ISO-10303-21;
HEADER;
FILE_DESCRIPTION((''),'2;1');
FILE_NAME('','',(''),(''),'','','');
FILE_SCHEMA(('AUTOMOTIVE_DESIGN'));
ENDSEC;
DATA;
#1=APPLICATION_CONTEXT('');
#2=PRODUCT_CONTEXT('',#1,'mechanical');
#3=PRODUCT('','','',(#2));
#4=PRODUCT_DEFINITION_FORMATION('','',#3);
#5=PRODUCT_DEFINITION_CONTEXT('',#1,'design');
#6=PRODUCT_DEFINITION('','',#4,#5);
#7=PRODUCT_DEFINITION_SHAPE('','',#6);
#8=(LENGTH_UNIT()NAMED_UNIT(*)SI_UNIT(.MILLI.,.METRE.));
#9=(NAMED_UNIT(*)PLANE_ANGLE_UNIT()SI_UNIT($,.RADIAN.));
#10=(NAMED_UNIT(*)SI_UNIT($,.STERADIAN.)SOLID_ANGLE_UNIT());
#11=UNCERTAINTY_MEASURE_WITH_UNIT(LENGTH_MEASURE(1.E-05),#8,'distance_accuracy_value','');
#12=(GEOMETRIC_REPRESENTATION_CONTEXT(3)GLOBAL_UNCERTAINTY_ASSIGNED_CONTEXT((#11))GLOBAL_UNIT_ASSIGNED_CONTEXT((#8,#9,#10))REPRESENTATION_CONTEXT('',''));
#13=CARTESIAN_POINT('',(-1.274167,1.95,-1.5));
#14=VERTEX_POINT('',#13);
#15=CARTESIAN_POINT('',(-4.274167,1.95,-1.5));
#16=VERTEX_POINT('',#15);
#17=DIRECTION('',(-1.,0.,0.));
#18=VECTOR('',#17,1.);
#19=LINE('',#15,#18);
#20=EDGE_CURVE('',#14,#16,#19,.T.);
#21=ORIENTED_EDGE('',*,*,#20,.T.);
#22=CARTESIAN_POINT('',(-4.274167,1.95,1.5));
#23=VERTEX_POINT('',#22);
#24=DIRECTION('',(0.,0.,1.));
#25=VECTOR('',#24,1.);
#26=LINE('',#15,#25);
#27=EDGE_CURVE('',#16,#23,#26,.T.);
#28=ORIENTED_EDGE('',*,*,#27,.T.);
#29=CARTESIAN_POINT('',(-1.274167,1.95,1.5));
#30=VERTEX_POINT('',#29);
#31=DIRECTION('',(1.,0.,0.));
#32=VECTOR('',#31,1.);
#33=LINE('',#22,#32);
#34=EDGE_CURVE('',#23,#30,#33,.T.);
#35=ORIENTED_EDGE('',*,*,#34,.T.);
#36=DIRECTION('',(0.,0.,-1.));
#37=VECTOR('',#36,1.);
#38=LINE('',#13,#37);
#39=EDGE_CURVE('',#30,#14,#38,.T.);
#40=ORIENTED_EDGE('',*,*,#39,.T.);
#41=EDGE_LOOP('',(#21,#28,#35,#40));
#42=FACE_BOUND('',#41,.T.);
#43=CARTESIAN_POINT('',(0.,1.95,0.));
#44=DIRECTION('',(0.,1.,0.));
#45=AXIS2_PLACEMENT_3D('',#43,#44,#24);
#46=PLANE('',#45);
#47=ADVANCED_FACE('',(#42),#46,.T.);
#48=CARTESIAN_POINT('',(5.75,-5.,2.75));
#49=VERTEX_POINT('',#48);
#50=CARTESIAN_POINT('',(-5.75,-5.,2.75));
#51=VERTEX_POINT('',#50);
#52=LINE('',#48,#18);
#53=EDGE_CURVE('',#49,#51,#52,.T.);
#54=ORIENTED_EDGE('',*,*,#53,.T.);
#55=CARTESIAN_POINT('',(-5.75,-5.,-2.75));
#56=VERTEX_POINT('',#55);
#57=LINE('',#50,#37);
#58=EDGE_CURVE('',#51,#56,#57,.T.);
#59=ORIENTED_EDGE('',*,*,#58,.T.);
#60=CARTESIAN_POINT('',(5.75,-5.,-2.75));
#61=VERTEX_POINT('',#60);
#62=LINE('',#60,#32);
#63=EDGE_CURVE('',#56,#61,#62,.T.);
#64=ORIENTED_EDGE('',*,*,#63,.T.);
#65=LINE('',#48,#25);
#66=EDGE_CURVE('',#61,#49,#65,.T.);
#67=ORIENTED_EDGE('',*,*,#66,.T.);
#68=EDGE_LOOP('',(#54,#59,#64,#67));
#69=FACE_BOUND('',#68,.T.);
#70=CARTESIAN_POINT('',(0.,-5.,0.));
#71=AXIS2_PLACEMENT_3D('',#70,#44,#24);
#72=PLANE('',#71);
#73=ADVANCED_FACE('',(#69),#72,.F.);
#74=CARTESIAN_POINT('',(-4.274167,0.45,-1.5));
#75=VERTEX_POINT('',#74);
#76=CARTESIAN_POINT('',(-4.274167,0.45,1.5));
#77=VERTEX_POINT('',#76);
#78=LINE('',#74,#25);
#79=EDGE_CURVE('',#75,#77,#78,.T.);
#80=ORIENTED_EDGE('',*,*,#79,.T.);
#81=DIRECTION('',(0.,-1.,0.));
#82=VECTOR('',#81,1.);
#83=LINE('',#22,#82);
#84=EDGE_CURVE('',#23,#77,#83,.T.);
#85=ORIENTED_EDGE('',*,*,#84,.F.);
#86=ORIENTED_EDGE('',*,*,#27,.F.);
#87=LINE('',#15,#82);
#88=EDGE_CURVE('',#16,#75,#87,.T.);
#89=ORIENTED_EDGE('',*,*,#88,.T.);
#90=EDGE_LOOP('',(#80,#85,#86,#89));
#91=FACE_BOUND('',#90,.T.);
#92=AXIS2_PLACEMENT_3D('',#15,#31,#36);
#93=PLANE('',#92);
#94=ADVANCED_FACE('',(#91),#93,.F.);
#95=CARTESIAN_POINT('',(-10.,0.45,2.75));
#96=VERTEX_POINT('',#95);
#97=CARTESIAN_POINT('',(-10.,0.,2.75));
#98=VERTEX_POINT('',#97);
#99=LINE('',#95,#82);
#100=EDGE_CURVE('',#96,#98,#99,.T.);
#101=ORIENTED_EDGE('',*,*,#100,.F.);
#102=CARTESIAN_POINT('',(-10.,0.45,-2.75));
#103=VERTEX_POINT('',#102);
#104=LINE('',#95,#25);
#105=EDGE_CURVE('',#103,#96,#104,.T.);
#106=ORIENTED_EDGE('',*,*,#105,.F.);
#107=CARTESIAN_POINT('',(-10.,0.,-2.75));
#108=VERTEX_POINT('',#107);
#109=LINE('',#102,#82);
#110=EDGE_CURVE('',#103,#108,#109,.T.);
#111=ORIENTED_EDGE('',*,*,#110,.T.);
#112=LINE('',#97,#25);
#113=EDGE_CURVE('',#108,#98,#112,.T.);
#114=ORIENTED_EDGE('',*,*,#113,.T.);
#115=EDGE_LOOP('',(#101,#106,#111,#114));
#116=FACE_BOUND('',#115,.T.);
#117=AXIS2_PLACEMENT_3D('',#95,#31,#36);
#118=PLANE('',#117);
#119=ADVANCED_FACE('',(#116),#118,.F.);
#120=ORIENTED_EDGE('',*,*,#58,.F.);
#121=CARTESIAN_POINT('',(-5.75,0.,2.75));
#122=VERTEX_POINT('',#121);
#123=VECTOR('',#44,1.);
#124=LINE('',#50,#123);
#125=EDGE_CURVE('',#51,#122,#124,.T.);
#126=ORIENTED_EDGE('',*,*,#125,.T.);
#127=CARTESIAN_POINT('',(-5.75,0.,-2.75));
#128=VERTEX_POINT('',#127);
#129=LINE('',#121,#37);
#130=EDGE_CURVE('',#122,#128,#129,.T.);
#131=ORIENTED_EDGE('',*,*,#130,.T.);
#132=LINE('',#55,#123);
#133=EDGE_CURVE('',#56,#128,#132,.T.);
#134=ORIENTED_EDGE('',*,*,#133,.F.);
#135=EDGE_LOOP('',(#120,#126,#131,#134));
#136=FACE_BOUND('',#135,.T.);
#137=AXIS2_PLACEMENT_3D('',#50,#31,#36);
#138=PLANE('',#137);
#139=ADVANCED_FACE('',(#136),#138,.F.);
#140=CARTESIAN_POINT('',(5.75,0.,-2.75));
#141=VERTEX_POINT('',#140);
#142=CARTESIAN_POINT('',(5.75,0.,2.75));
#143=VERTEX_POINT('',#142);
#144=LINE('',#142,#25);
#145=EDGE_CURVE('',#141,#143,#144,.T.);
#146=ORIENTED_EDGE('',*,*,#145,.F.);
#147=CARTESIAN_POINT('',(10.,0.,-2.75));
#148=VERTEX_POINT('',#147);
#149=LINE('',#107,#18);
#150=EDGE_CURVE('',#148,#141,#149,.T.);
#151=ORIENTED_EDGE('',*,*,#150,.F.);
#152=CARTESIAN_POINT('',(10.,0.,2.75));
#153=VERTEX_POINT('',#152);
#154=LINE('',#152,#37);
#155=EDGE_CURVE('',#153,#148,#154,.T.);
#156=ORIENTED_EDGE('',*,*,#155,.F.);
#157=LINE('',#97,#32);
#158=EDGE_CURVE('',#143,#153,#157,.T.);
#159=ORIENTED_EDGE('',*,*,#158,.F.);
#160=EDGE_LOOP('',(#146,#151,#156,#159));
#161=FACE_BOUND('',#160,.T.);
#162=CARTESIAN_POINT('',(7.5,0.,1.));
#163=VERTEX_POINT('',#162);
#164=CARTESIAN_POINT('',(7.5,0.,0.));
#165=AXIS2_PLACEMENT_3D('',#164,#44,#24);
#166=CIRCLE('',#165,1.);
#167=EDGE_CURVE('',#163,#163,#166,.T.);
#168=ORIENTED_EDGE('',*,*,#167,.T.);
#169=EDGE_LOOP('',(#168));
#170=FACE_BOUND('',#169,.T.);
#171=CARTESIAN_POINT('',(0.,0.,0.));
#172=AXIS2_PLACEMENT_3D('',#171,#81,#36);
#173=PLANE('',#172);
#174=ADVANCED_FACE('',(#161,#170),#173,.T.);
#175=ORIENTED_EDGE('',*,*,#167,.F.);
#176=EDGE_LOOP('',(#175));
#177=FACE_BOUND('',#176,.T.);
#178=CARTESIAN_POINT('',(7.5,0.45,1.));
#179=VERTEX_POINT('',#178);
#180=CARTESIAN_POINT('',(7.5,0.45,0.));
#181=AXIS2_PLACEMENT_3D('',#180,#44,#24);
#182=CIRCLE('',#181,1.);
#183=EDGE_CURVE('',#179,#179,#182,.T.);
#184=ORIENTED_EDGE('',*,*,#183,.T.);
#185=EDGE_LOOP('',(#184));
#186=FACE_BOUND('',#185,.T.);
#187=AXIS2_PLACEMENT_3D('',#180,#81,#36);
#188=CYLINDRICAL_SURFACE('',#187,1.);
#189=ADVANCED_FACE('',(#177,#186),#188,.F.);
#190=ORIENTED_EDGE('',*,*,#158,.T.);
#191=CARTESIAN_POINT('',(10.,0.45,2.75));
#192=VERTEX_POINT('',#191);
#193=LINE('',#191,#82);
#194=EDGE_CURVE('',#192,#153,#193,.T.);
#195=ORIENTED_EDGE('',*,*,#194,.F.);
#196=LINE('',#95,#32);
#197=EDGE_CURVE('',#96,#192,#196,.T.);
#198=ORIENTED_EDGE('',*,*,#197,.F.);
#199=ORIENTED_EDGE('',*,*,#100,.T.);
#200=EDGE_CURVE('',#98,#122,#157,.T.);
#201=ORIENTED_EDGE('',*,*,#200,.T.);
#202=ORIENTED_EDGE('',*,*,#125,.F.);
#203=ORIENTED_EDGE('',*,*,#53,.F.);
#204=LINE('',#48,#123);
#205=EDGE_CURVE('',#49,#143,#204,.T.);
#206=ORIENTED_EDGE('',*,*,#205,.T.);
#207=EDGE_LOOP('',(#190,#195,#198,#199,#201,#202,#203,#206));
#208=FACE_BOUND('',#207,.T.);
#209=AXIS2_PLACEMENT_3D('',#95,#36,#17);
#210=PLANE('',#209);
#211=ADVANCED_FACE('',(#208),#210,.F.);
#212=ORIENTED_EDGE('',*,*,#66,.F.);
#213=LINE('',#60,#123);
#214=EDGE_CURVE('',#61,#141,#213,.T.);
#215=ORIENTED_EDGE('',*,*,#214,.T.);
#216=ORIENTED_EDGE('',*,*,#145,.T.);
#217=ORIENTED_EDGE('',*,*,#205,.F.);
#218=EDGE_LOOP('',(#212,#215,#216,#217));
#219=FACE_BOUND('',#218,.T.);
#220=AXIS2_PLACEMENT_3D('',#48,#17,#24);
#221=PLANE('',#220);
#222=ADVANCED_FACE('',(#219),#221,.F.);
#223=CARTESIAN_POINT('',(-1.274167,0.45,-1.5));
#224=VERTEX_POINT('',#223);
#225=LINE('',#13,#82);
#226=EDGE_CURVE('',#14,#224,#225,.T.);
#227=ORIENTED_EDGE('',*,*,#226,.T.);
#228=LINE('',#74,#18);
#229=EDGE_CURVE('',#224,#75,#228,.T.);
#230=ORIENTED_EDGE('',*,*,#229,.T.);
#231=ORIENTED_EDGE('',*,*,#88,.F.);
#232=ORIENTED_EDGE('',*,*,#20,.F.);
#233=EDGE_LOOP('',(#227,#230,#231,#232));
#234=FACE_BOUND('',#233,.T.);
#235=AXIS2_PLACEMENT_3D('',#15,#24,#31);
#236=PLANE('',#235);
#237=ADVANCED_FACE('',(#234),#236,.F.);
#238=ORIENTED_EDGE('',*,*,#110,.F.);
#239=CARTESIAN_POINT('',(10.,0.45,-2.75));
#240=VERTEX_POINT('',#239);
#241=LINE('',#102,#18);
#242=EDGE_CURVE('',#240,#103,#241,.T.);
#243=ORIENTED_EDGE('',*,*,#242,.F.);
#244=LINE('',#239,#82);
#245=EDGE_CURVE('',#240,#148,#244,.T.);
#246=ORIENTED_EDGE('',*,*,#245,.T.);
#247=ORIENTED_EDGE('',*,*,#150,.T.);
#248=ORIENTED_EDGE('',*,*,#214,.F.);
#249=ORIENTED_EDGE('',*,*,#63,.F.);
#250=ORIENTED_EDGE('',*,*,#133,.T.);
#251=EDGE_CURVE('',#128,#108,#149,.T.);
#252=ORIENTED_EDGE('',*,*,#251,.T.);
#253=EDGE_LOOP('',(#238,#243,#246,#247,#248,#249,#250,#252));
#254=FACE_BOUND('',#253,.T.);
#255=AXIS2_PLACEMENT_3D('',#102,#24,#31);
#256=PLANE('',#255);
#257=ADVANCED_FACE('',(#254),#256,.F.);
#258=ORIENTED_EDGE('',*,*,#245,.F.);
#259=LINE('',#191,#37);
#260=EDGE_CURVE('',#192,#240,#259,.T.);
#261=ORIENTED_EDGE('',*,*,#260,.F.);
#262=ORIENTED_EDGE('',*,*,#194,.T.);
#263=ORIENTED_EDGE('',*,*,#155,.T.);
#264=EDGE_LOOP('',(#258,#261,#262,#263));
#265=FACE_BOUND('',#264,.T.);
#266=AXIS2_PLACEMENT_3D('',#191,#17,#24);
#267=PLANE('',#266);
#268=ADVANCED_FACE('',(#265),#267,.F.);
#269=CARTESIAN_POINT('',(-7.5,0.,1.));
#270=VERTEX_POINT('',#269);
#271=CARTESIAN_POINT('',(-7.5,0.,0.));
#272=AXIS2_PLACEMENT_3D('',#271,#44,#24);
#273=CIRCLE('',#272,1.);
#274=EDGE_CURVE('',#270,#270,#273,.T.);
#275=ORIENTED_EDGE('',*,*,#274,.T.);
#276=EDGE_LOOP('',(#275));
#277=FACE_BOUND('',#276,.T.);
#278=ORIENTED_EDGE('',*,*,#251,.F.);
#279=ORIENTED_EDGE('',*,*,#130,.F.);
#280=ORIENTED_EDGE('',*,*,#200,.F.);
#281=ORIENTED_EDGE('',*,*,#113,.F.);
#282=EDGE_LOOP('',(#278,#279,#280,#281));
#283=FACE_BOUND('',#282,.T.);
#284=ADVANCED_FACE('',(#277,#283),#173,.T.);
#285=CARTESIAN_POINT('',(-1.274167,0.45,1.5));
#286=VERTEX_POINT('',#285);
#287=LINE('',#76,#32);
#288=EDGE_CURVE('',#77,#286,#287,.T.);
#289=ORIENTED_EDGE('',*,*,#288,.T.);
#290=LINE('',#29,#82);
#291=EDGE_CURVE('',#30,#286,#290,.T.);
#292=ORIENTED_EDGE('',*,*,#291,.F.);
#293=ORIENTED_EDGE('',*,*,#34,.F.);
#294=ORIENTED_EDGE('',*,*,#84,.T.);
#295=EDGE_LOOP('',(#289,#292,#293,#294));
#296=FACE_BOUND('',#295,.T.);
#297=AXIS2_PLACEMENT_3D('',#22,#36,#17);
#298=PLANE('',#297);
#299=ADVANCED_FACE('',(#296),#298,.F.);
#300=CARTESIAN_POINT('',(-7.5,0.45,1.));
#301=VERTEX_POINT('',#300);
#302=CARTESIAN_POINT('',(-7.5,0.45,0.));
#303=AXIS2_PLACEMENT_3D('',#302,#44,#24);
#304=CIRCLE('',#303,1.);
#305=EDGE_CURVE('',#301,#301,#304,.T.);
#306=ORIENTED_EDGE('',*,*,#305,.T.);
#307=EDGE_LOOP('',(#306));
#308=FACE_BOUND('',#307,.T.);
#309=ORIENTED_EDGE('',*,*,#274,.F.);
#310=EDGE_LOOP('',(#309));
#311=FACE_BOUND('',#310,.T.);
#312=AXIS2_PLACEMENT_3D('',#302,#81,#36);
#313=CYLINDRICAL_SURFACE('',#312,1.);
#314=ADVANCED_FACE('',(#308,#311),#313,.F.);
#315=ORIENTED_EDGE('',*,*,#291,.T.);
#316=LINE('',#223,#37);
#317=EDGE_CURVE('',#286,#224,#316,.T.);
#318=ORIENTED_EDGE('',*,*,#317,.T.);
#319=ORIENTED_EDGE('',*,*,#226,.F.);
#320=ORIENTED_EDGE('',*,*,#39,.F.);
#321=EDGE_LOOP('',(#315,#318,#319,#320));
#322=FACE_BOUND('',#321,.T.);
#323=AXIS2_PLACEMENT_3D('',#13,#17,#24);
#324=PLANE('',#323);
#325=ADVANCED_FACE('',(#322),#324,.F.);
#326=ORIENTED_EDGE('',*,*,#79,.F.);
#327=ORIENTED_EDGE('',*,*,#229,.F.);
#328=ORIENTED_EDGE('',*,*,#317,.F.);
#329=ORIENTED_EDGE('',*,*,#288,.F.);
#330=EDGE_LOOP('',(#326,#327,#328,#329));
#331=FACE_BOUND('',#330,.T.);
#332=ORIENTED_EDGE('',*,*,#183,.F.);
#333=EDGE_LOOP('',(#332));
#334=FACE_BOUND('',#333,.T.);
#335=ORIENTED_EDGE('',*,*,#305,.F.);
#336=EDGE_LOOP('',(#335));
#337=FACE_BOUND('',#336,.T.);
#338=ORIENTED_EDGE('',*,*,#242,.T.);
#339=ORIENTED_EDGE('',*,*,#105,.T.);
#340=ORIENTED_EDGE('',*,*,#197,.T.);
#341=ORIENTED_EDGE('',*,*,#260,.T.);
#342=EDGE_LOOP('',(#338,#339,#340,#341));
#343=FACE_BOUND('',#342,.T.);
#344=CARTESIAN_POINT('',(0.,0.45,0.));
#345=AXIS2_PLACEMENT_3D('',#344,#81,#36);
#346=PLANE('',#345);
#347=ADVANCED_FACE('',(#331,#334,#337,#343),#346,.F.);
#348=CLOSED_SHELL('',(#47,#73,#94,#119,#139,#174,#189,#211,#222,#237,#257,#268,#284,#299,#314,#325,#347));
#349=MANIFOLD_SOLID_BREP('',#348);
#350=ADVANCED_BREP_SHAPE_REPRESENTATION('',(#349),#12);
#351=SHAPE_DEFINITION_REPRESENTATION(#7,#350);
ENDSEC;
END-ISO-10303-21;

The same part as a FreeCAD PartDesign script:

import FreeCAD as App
import Part
import Sketcher

V = App.Vector
Q = App.Units.Quantity


def add_polygon(sketch, points):
    """Adds a closed chain of lines whose ends are joined by coincident constraints."""
    first, n = sketch.GeometryCount, len(points)
    for a, b in zip(points, points[1:] + points[:1]):
        sketch.addGeometry(Part.LineSegment(App.Vector(*a, 0), App.Vector(*b, 0)), False)
    for i in range(n):
        sketch.addConstraint(Sketcher.Constraint("Coincident", first + i, 2, first + (i + 1) % n, 1))

doc = App.newDocument("Part")
body = doc.addObject("PartDesign::Body", "Body")

sketch1 = body.newObject("Sketcher::SketchObject", "Sketch")
sketch1.AttachmentSupport = (doc.getObject("XZ_Plane"), [""])
sketch1.MapMode = "FlatFace"
add_polygon(sketch1, [(-10, -2.8), (-10, 2.8), (10, 2.8), (10, -2.8)])
sketch1.addGeometry(Part.Circle(V(-7.5, 0, 0), V(0, 0, 1), 1), False)
sketch1.addGeometry(Part.Circle(V(7.5, 0, 0), V(0, 0, 1), 1), False)
sketch1.addConstraint([
    Sketcher.Constraint("Vertical", 0),
    Sketcher.Constraint("Horizontal", 1),
    Sketcher.Constraint("Vertical", 2),
    Sketcher.Constraint("Horizontal", 3),
    Sketcher.Constraint("Equal", 4, 5),
    Sketcher.Constraint("Symmetric", 4, 3, 5, 3, -1, 1),
    Sketcher.Constraint("Symmetric", 0, 2, 2, 2, -1, 1),
    Sketcher.Constraint("PointOnObject", 4, 3, -1),
    Sketcher.Constraint("Diameter", 4, Q("2 mm")),
    Sketcher.Constraint("DistanceX", 1, 1, 1, 2, Q("20 mm")),
    Sketcher.Constraint("DistanceY", 0, 1, 0, 2, Q("5.5 mm")),
    Sketcher.Constraint("DistanceX", 4, 3, 5, 3, Q("15 mm")),
])
pad1 = body.newObject("PartDesign::Pad", "Pad")
pad1.Profile = sketch1
pad1.Length = 0.45
pad1.Reversed = True

sketch2 = body.newObject("Sketcher::SketchObject", "Sketch001")
sketch2.AttachmentSupport = (doc.getObject("XZ_Plane"), [""])
sketch2.MapMode = "FlatFace"
add_polygon(sketch2, [(-6, 3), (-6, -3), (6, -3), (6, 3)])
sketch2.addConstraint([
    Sketcher.Constraint("Vertical", 0),
    Sketcher.Constraint("Horizontal", 1),
    Sketcher.Constraint("Vertical", 2),
    Sketcher.Constraint("Horizontal", 3),
    Sketcher.Constraint("Symmetric", 0, 2, 2, 2, -1, 1),
    Sketcher.Constraint("DistanceX", 1, 1, 1, 2, Q("11.5 mm")),
    Sketcher.Constraint("DistanceY", 0, 2, 0, 1, Q("5.5 mm")),
])
pad2 = body.newObject("PartDesign::Pad", "Pad001")
pad2.Profile = sketch2
pad2.Length = 5

sketch3 = body.newObject("Sketcher::SketchObject", "Sketch002")
sketch3.AttachmentSupport = (doc.getObject("XZ_Plane"), [""])
sketch3.MapMode = "FlatFace"
sketch3.AttachmentOffset = App.Placement(V(0, 0, -0.45), App.Rotation())
add_polygon(sketch3, [(-4.3, -1.5), (-4.3, 1.5), (-1.3, 1.5), (-1.3, -1.5)])
sketch3.addConstraint([
    Sketcher.Constraint("Vertical", 0),
    Sketcher.Constraint("Horizontal", 1),
    Sketcher.Constraint("Vertical", 2),
    Sketcher.Constraint("Horizontal", 3),
    Sketcher.Constraint("Equal", 3, 0),
    Sketcher.Constraint("DistanceX", 1, 1, 1, 2, Q("3 mm")),
    Sketcher.Constraint("DistanceY", -1, 1, 0, 2, Q("1.5 mm")),
    Sketcher.Constraint("DistanceX", 0, 2, -1, 1, Q("4.274167 mm")),
])
pad3 = body.newObject("PartDesign::Pad", "Pad002")
pad3.Profile = sketch3
pad3.Length = 1.5
pad3.Reversed = True

doc.recompute()
